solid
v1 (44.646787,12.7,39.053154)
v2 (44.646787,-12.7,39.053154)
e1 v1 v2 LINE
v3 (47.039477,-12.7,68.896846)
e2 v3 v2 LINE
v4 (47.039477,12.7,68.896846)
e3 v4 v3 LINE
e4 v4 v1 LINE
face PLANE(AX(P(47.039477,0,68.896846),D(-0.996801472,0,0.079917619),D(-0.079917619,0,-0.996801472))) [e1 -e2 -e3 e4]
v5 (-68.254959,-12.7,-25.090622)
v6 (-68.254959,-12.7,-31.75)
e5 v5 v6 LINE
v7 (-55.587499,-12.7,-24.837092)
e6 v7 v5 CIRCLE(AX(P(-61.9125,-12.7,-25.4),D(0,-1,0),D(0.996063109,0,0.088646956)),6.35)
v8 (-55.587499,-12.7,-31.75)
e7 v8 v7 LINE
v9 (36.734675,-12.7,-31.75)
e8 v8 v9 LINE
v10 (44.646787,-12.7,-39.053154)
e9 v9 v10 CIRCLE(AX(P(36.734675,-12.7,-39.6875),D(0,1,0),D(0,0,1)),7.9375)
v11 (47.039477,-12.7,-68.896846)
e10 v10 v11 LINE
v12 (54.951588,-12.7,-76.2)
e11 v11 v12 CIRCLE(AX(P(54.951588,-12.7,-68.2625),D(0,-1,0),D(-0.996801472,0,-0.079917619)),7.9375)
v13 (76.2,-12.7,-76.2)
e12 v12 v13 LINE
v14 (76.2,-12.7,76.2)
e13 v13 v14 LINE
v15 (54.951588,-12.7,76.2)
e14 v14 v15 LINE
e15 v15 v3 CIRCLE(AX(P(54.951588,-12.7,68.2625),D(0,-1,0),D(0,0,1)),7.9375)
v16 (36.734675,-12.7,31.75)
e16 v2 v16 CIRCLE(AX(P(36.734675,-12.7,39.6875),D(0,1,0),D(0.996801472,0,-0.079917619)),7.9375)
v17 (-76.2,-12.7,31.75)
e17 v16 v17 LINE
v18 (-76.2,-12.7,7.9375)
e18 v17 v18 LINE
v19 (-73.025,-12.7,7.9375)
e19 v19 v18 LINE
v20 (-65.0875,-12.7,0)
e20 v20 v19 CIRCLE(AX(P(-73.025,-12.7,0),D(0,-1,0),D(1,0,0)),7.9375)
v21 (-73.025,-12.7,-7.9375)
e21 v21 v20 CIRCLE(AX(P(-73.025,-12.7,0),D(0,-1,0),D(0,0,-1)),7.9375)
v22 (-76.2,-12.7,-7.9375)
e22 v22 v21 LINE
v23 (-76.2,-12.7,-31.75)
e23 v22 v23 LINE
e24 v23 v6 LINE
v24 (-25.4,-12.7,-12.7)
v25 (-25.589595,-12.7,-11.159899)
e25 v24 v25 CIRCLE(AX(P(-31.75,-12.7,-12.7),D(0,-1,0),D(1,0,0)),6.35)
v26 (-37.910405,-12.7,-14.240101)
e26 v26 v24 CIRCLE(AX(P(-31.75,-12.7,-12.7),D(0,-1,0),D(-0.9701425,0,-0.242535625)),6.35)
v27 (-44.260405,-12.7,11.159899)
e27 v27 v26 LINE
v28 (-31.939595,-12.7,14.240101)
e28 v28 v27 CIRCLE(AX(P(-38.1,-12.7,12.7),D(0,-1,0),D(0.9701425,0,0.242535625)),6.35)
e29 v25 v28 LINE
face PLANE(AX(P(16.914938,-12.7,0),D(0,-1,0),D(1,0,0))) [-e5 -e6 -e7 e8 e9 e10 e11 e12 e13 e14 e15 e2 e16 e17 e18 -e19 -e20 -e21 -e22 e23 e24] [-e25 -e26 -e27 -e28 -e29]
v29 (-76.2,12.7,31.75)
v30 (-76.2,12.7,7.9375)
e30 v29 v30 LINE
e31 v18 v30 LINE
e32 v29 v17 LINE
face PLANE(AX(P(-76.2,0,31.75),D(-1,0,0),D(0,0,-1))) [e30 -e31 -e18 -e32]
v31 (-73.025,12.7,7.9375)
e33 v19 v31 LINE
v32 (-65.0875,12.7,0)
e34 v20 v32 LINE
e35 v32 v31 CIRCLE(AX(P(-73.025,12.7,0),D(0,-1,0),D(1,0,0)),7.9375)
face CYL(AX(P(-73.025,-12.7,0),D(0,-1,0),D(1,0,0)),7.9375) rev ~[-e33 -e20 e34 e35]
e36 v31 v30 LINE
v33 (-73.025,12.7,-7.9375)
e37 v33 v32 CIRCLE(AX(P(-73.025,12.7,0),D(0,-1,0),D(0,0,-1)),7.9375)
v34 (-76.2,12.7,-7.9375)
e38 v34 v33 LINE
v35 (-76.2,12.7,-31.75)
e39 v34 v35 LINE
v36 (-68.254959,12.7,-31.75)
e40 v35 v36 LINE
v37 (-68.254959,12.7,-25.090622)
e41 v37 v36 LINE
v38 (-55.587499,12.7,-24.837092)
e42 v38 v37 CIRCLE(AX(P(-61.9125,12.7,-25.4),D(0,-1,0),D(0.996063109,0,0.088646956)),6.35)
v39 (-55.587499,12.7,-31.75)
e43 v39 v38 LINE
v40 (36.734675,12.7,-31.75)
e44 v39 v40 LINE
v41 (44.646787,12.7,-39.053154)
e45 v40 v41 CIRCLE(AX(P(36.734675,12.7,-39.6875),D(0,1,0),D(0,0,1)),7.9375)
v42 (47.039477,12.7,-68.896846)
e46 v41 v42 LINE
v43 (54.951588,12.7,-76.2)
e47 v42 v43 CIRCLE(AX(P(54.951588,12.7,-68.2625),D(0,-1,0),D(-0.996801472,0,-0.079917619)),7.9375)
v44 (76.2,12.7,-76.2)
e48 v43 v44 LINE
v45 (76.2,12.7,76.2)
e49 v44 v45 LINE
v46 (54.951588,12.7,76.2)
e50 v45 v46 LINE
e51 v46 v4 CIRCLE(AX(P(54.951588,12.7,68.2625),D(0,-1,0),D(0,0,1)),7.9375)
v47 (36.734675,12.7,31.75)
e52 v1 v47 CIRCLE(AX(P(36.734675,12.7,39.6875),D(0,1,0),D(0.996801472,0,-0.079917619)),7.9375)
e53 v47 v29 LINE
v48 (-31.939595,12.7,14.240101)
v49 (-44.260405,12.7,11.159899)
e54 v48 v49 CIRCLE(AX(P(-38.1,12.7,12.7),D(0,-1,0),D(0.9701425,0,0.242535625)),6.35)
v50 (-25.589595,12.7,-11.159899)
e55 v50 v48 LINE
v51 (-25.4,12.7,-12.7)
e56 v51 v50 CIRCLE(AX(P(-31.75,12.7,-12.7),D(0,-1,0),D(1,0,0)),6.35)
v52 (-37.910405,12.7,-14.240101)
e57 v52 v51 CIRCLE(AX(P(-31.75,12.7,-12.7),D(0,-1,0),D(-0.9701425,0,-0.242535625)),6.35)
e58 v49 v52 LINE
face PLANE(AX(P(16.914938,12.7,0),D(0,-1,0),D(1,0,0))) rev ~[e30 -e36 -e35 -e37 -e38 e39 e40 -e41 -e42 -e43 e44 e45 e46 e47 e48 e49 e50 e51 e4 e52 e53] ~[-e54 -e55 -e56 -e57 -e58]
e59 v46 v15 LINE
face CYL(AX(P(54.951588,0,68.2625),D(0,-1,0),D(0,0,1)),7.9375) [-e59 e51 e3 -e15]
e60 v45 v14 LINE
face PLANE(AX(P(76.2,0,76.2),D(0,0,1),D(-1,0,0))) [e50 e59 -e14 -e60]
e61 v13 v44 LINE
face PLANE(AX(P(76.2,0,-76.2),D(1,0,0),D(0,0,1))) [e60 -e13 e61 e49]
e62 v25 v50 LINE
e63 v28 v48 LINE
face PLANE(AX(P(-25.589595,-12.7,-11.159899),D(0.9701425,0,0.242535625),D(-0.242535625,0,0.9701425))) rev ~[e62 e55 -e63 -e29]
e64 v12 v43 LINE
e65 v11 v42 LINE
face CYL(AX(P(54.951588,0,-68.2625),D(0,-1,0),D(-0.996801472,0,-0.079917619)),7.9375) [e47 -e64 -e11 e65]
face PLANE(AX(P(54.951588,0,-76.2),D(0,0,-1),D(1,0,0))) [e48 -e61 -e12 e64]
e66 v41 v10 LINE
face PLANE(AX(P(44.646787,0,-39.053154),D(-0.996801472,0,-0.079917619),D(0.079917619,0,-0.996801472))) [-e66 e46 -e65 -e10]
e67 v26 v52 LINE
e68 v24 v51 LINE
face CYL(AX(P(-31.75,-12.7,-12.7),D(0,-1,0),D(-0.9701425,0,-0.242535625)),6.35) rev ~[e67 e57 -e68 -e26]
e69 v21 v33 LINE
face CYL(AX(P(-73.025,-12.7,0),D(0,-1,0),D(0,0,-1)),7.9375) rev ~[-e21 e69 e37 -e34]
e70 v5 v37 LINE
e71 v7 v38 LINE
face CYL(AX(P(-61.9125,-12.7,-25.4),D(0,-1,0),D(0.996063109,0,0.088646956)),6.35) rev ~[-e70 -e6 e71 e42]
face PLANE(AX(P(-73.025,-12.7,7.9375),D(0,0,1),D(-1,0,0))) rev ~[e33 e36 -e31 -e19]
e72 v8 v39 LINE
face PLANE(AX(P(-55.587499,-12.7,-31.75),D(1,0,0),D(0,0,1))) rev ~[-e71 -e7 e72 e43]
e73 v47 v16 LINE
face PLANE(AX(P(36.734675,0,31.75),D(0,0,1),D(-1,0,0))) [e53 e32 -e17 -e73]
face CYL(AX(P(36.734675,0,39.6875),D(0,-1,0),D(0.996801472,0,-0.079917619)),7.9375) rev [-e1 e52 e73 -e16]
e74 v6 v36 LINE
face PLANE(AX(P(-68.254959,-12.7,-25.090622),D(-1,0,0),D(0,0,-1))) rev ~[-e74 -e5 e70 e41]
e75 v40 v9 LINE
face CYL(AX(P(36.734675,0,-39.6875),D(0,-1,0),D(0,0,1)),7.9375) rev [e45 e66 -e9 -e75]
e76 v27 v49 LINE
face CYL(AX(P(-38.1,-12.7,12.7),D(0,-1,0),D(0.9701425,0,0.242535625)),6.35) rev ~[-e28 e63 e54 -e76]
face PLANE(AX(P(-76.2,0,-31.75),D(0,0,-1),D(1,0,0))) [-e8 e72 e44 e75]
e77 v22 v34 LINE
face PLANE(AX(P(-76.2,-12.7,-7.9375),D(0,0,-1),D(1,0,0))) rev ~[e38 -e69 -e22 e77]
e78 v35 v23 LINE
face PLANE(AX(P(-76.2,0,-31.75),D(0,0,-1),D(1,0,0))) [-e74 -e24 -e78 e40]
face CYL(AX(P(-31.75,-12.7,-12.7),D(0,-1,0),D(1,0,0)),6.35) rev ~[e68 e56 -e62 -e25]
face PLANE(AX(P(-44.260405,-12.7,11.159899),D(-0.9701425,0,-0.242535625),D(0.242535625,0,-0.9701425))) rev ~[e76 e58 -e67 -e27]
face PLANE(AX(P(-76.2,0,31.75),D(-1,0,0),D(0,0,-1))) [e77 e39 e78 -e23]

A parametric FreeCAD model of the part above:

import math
import FreeCAD as App
import Part
import Sketcher

V = App.Vector
Q = App.Units.Quantity

doc = App.newDocument("Part")
body = doc.addObject("PartDesign::Body", "Body")

# Sketch on XZ plane
sketch1 = body.newObject("Sketcher::SketchObject", "Sketch")
sketch1.AttachmentSupport = (doc.getObject("XZ_Plane"), [""])
sketch1.MapMode = "FlatFace"
sketch1.addGeometry([
    Part.LineSegment(V(76, -76, 0), V(76, 76, 0)),  # 0
    Part.LineSegment(V(76, 76, 0), V(55, 76, 0)),  # 1
    Part.ArcOfCircle(Part.Circle(V(55, 68, 0), V(0, 0, 1), 8), math.radians(90), math.radians(175)),  # 2
    Part.LineSegment(V(47, 69, 0), V(45, 39, 0)),  # 3
    Part.ArcOfCircle(Part.Circle(V(37, 40, 0), V(0, 0, 1), 8), math.radians(-90), math.radians(-5)),  # 4
    Part.LineSegment(V(37, 32, 0), V(-76, 32, 0)),  # 5
    Part.LineSegment(V(-76, 32, 0), V(-76, -32, 0)),  # 6
    Part.LineSegment(V(-76, -32, 0), V(37, -32, 0)),  # 7
    Part.ArcOfCircle(Part.Circle(V(37, -40, 0), V(0, 0, 1), 8), math.radians(5), math.radians(90)),  # 8
    Part.LineSegment(V(45, -39, 0), V(47, -69, 0)),  # 9
    Part.ArcOfCircle(Part.Circle(V(55, -68, 0), V(0, 0, 1), 8), math.radians(-175), math.radians(-90)),  # 10
    Part.LineSegment(V(55, -76, 0), V(76, -76, 0)),  # 11
], False)
sketch1.addConstraint([
    Sketcher.Constraint("Coincident", 0, 2, 1, 1),
    Sketcher.Constraint("Tangent", 1, 2, 2, 1),
    Sketcher.Constraint("Tangent", 2, 2, 3, 1),
    Sketcher.Constraint("Tangent", 3, 2, 4, 2),
    Sketcher.Constraint("Tangent", 4, 1, 5, 1),
    Sketcher.Constraint("Coincident", 5, 2, 6, 1),
    Sketcher.Constraint("Coincident", 6, 2, 7, 1),
    Sketcher.Constraint("Tangent", 7, 2, 8, 2),
    Sketcher.Constraint("Tangent", 8, 1, 9, 1),
    Sketcher.Constraint("Tangent", 9, 2, 10, 1),
    Sketcher.Constraint("Tangent", 10, 2, 11, 1),
    Sketcher.Constraint("Coincident", 11, 2, 0, 1),
    Sketcher.Constraint("Vertical", 0),
    Sketcher.Constraint("Horizontal", 1),
    Sketcher.Constraint("Horizontal", 5),
    Sketcher.Constraint("Vertical", 6),
    Sketcher.Constraint("Horizontal", 7),
    Sketcher.Constraint("Horizontal", 11),
    Sketcher.Constraint("Equal", 2, 4),
    Sketcher.Constraint("Equal", 4, 8),
    Sketcher.Constraint("Equal", 8, 10),
    Sketcher.Constraint("Symmetric", 4, 3, 8, 3, -1),
    Sketcher.Constraint("Symmetric", 2, 3, 10, 3, -1),
    Sketcher.Constraint("DistanceY", 0, 1, 0, 2, Q("6 in")),
    Sketcher.Constraint("DistanceY", 6, 2, 6, 1, Q("2.5 in")),
    Sketcher.Constraint("DistanceX", -1, 1, 0, 2, Q("3 in")),
    Sketcher.Constraint("DistanceX", 5, 2, -1, 1, Q("3 in")),
    Sketcher.Constraint("Radius", 2, Q("0.3125 in")),
    Sketcher.Constraint("DistanceX", 1, 2, 1, 1, 21.248412),
    Sketcher.Constraint("DistanceX", 4, 3, 2, 2, 10.304802),
])
pad1 = body.newObject("PartDesign::Pad", "Pad")
pad1.Profile = sketch1
pad1.Length = Q("1 in")
pad1.Midplane = True

# Sketch on XZ plane
sketch2 = body.newObject("Sketcher::SketchObject", "Sketch001")
sketch2.AttachmentSupport = (doc.getObject("XZ_Plane"), [""])
sketch2.MapMode = "FlatFace"
sketch2.AttachmentOffset = App.Placement(V(0, 0, 0.5 * 25.4), App.Rotation())
sketch2.addGeometry([
    Part.ArcOfCircle(Part.Circle(V(-73, 0, 0), V(0, 0, 1), 7.9), math.radians(0), math.radians(90)),  # 0
    Part.LineSegment(V(-73, 7.9, 0), V(-76.2, 7.9, 0)),  # 1
    Part.LineSegment(V(-76.2, 7.9, 0), V(-76.2, -7.9, 0)),  # 2
    Part.LineSegment(V(-76.2, -7.9, 0), V(-73, -7.9, 0)),  # 3
    Part.ArcOfCircle(Part.Circle(V(-73, 0, 0), V(0, 0, 1), 7.9), math.radians(-90), math.radians(0)),  # 4
], False)
sketch2.addConstraint([
    Sketcher.Constraint("Tangent", 0, 2, 1, 1),
    Sketcher.Constraint("Coincident", 1, 2, 2, 1),
    Sketcher.Constraint("Coincident", 2, 2, 3, 1),
    Sketcher.Constraint("Tangent", 3, 2, 4, 1),
    Sketcher.Constraint("Tangent", 4, 2, 0, 1),
    Sketcher.Constraint("Horizontal", 1),
    Sketcher.Constraint("Vertical", 2),
    Sketcher.Constraint("Horizontal", 3),
    Sketcher.Constraint("Equal", 0, 4),
    Sketcher.Constraint("PointOnObject", 0, 3, -1),
    Sketcher.Constraint("PointOnObject", 4, 2, -1),
    Sketcher.Constraint("DistanceX", 1, 2, -1, 1, Q("3 in")),
    Sketcher.Constraint("Radius", 0, Q("0.3125 in")),
    Sketcher.Constraint("DistanceX", 1, 2, 1, 1, Q("0.125 in")),
])
pocket1 = body.newObject("PartDesign::Pocket", "Pocket")
pocket1.Profile = sketch2
pocket1.Type = "ThroughAll"

# Sketch on XZ plane
sketch3 = body.newObject("Sketcher::SketchObject", "Sketch002")
sketch3.AttachmentSupport = (doc.getObject("XZ_Plane"), [""])
sketch3.MapMode = "FlatFace"
sketch3.AttachmentOffset = App.Placement(V(0, 0, 0.5 * 25.4), App.Rotation())
sketch3.addGeometry([
    Part.ArcOfCircle(Part.Circle(V(-31.8, -12.7, 0), V(0, 0, 1), 6.4), math.radians(0), math.radians(14.04)),  # 0
    Part.LineSegment(V(-25.6, -11.2, 0), V(-31.9, 14.2, 0)),  # 1
    Part.ArcOfCircle(Part.Circle(V(-38.1, 12.7, 0), V(0, 0, 1), 6.3), math.radians(14), math.radians(194)),  # 2
    Part.LineSegment(V(-44.3, 11.2, 0), V(-37.9, -14.2, 0)),  # 3
    Part.ArcOfCircle(Part.Circle(V(-31.8, -12.7, 0), V(0, 0, 1), 6.3), math.radians(-166), math.radians(0)),  # 4
    Part.LineSegment(V(-55.6, -31.8, 0), V(-55.6, -24.8, 0)),  # 5
    Part.ArcOfCircle(Part.Circle(V(-61.9, -25.4, 0), V(0, 0, 1), 6.3), math.radians(5), math.radians(177)),  # 6
    Part.LineSegment(V(-68.3, -25.1, 0), V(-68.3, -31.8, 0)),  # 7
    Part.LineSegment(V(-68.3, -31.8, 0), V(-55.6, -31.8, 0)),  # 8
], False)
sketch3.addConstraint([
    Sketcher.Constraint("Tangent", 0, 2, 1, 1),
    Sketcher.Constraint("Tangent", 1, 2, 2, 1),
    Sketcher.Constraint("Tangent", 2, 2, 3, 1),
    Sketcher.Constraint("Tangent", 3, 2, 4, 1),
    Sketcher.Constraint("Tangent", 4, 2, 0, 1),
    Sketcher.Constraint("Coincident", 5, 2, 6, 1),
    Sketcher.Constraint("Coincident", 6, 2, 7, 1),
    Sketcher.Constraint("Coincident", 7, 2, 8, 1),
    Sketcher.Constraint("Coincident", 8, 2, 5, 1),
    Sketcher.Constraint("Vertical", 5),
    Sketcher.Constraint("Vertical", 7),
    Sketcher.Constraint("Horizontal", 8),
    Sketcher.Constraint("Equal", 0, 2),
    Sketcher.Constraint("Equal", 2, 4),
    Sketcher.Constraint("Equal", 4, 6),
    Sketcher.Constraint("Horizontal", 0, 3, 4, 2),
    Sketcher.Constraint("Radius", 0, Q("0.25 in")),
    Sketcher.Constraint("DistanceY", 6, 3, -1, 1, Q("1 in")),
    Sketcher.Constraint("DistanceX", 4, 2, -1, 1, Q("1 in")),
    Sketcher.Constraint("DistanceY", 0, 3, 2, 3, Q("1 in")),
    Sketcher.Constraint("DistanceY", 0, 3, -1, 1, Q("0.5 in")),
    Sketcher.Constraint("DistanceX", 2, 3, -1, 1, Q("1.5 in")),
    Sketcher.Constraint("DistanceY", 7, 2, -1, 1, Q("1.25 in")),
    Sketcher.Constraint("DistanceX", 6, 3, -1, 1, Q("2.4375 in")),
    Sketcher.Constraint("DistanceX", 8, 1, 8, 2, 12.66746),
    Sketcher.Constraint("DistanceY", 5, 1, 5, 2, 6.912908),
])
pocket2 = body.newObject("PartDesign::Pocket", "Pocket001")
pocket2.Profile = sketch3
pocket2.Length = Q("1 in")

doc.recompute()
